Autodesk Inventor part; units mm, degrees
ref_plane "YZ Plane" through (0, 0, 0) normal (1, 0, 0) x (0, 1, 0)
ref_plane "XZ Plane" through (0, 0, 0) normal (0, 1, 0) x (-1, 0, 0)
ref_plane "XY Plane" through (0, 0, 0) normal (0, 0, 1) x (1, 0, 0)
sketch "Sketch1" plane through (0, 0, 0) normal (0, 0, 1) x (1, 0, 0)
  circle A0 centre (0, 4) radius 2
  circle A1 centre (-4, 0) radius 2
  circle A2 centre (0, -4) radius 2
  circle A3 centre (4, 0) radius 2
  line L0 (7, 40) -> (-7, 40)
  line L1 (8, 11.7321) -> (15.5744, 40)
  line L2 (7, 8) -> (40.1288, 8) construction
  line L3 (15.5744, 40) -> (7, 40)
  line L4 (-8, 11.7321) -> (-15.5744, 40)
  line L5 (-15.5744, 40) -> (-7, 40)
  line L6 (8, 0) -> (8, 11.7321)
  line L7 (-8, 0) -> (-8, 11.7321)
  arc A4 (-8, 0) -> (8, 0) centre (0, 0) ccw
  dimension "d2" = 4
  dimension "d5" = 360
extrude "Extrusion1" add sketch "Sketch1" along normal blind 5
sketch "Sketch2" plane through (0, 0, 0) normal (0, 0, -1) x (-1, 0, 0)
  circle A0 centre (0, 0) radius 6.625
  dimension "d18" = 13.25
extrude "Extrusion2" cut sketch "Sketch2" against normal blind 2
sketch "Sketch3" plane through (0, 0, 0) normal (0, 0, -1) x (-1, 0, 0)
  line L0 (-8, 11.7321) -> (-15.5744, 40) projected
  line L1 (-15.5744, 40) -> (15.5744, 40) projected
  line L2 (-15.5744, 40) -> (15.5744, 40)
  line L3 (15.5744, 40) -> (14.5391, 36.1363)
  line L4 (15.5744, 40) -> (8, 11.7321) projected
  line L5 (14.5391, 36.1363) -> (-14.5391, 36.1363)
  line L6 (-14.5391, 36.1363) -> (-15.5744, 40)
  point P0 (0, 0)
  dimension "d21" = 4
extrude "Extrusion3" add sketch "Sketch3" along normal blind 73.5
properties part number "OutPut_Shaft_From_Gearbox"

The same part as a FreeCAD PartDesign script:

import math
import FreeCAD as App
import Part
import Sketcher
Q = App.Units.Quantity


def add_polygon(sketch, points):
    """Adds a closed chain of lines whose ends are joined by coincident constraints."""
    first, n = sketch.GeometryCount, len(points)
    for a, b in zip(points, points[1:] + points[:1]):
        sketch.addGeometry(Part.LineSegment(App.Vector(*a, 0), App.Vector(*b, 0)), False)
    for i in range(n):
        sketch.addConstraint(Sketcher.Constraint("Coincident", first + i, 2, first + (i + 1) % n, 1))

doc = App.newDocument("Part")
body = doc.addObject("PartDesign::Body", "Body")

# Sketch on XY plane
sketch1 = body.newObject("Sketcher::SketchObject", "Sketch")
sketch1.AttachmentSupport = (doc.getObject("XY_Plane"), [""])
sketch1.MapMode = "FlatFace"
sketch1.addGeometry(Part.LineSegment(App.Vector(15.6, 40, 0), App.Vector(-15.6, 40, 0)), False)
sketch1.addGeometry(Part.LineSegment(App.Vector(-15.6, 40, 0), App.Vector(-8, 11.7, 0)), False)
sketch1.addGeometry(Part.LineSegment(App.Vector(-8, 11.7, 0), App.Vector(-8, 0, 0)), False)
sketch1.addGeometry(Part.ArcOfCircle(Part.Circle(App.Vector(0, 0, 0), App.Vector(0, 0, 1), 8), math.radians(180), math.radians(360)), False)
sketch1.addGeometry(Part.LineSegment(App.Vector(8, 0, 0), App.Vector(8, 11.7, 0)), False)
sketch1.addGeometry(Part.LineSegment(App.Vector(8, 11.7, 0), App.Vector(15.6, 40, 0)), False)
sketch1.addGeometry(Part.Circle(App.Vector(-4, 0, 0), App.Vector(0, 0, 1), 2), False)
sketch1.addGeometry(Part.Circle(App.Vector(0, -4, 0), App.Vector(0, 0, 1), 2), False)
sketch1.addGeometry(Part.Circle(App.Vector(4, 0, 0), App.Vector(0, 0, 1), 2), False)
sketch1.addGeometry(Part.Circle(App.Vector(0, 4, 0), App.Vector(0, 0, 1), 2), False)
sketch1.addConstraint(Sketcher.Constraint("Coincident", 0, 2, 1, 1))
sketch1.addConstraint(Sketcher.Constraint("Coincident", 1, 2, 2, 1))
sketch1.addConstraint(Sketcher.Constraint("Tangent", 2, 2, 3, 1))
sketch1.addConstraint(Sketcher.Constraint("Tangent", 3, 2, 4, 1))
sketch1.addConstraint(Sketcher.Constraint("Coincident", 4, 2, 5, 1))
sketch1.addConstraint(Sketcher.Constraint("Coincident", 5, 2, 0, 1))
sketch1.addConstraint(Sketcher.Constraint("Horizontal", 0))
sketch1.addConstraint(Sketcher.Constraint("Vertical", 2))
sketch1.addConstraint(Sketcher.Constraint("Vertical", 4))
sketch1.addConstraint(Sketcher.Constraint("Coincident", 3, 3, -1, 1))
sketch1.addConstraint(Sketcher.Constraint("Equal", 6, 7))
sketch1.addConstraint(Sketcher.Constraint("Equal", 7, 8))
sketch1.addConstraint(Sketcher.Constraint("Equal", 8, 9))
sketch1.addConstraint(Sketcher.Constraint("Symmetric", 6, 3, 8, 3, -1, 1))
sketch1.addConstraint(Sketcher.Constraint("Symmetric", 7, 3, 9, 3, -1, 1))
sketch1.addConstraint(Sketcher.Constraint("PointOnObject", 6, 3, -1))
sketch1.addConstraint(Sketcher.Constraint("PointOnObject", 7, 3, -2))
sketch1.addConstraint(Sketcher.Constraint("Horizontal", 1, 2, 4, 2))
sketch1.addConstraint(Sketcher.Constraint("Equal", 1, 5))
sketch1.addConstraint(Sketcher.Constraint("Diameter", 6, 4.0))
sketch1.addConstraint(Sketcher.Constraint("DistanceX", 6, 3, -1, 1, 4.0))
sketch1.addConstraint(Sketcher.Constraint("DistanceY", 7, 3, -1, 1, 4.0))
sketch1.addConstraint(Sketcher.Constraint("Radius", 3, 8.0))
sketch1.addConstraint(Sketcher.Constraint("Angle", 1, Q("-75 deg")))
sketch1.addConstraint(Sketcher.Constraint("DistanceY", -1, 1, 0, 2, 40.0))
sketch1.addConstraint(Sketcher.Constraint("DistanceY", 2, 2, 2, 1, 11.732))
pad1 = body.newObject("PartDesign::Pad", "Pad")
pad1.Profile = sketch1
pad1.Length = 5

# Sketch on XY plane
sketch2 = body.newObject("Sketcher::SketchObject", "Sketch001")
sketch2.AttachmentSupport = (doc.getObject("XY_Plane"), [""])
sketch2.MapMode = "FlatFace"
sketch2.addGeometry(Part.Circle(App.Vector(0, 0, 0), App.Vector(0, 0, 1), 7), False)
sketch2.addConstraint(Sketcher.Constraint("Coincident", 0, 3, -1, 1))
sketch2.addConstraint(Sketcher.Constraint("Diameter", 0, 13.25))
pocket1 = body.newObject("PartDesign::Pocket", "Pocket")
pocket1.Profile = sketch2
pocket1.Length = 2
pocket1.Reversed = True

# Sketch on XY plane
sketch3 = body.newObject("Sketcher::SketchObject", "Sketch002")
sketch3.AttachmentSupport = (doc.getObject("XY_Plane"), [""])
sketch3.MapMode = "FlatFace"
add_polygon(sketch3, [(15.6, 40), (14.5, 36.1), (-14.5, 36.1), (-15.6, 40)])  # lines 0-3
sketch3.addConstraint(Sketcher.Constraint("Horizontal", 1))
sketch3.addConstraint(Sketcher.Constraint("Horizontal", 3))
sketch3.addConstraint(Sketcher.Constraint("Equal", 0, 2))
sketch3.addConstraint(Sketcher.Constraint("Distance", 0, 4.0))
sketch3.addConstraint(Sketcher.Constraint("Angle", 0, Q("-105 deg")))
sketch3.addConstraint(Sketcher.Constraint("DistanceY", -1, 1, 2, 2, 40.0))
sketch3.addConstraint(Sketcher.Constraint("DistanceX", 1, 2, 1, 1, 29.0782))
sketch3.addConstraint(Sketcher.Constraint("DistanceX", -1, 1, 0, 2, 14.539))
pad2 = body.newObject("PartDesign::Pad", "Pad001")
pad2.Profile = sketch3
pad2.Length = 73.5
pad2.Reversed = True

doc.recompute()
